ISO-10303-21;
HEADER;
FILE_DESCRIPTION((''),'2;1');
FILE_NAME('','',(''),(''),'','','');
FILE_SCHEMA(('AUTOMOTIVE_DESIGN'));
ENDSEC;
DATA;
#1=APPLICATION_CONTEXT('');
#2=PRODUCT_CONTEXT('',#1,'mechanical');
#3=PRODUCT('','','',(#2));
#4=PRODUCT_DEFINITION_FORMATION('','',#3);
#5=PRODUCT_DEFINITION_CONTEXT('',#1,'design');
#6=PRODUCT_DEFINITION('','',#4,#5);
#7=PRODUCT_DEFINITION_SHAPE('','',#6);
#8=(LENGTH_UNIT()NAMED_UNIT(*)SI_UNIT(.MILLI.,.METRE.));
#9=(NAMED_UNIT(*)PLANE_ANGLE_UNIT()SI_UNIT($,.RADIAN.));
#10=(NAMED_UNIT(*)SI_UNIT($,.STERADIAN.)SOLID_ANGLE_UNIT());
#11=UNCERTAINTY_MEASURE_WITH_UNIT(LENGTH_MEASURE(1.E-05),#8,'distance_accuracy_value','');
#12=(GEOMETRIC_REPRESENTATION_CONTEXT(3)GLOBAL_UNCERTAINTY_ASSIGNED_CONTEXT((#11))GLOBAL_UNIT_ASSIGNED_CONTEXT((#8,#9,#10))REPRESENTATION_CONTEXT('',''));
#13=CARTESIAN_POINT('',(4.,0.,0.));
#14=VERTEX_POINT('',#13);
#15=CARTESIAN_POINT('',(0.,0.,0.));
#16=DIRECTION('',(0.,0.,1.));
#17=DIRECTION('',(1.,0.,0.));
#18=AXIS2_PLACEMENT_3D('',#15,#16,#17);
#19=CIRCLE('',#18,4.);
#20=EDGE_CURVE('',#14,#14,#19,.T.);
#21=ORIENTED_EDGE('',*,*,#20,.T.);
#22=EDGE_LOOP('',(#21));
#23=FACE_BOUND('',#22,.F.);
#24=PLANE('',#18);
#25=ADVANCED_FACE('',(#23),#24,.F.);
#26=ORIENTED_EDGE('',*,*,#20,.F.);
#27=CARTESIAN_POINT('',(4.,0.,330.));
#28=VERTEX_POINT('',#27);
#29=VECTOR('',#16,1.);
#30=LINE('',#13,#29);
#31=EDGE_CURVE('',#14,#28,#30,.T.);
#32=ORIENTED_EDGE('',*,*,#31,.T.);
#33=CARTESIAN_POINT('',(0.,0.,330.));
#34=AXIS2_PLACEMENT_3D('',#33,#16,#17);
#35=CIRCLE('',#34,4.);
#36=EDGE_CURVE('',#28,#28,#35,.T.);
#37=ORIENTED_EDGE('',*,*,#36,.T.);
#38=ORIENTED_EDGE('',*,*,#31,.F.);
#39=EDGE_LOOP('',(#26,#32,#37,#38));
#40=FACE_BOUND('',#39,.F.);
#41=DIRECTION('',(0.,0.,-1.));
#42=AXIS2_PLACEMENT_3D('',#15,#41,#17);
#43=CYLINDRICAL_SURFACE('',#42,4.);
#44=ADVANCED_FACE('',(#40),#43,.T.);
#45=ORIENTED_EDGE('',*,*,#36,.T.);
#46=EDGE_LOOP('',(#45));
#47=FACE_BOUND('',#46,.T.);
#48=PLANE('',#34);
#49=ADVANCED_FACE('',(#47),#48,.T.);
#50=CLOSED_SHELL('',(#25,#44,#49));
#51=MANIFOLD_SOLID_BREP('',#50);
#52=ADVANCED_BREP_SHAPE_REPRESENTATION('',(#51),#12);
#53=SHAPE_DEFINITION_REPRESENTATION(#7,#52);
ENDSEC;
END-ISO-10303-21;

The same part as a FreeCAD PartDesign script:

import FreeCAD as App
import Part
import Sketcher
Q = App.Units.Quantity

doc = App.newDocument("Part")
body = doc.addObject("PartDesign::Body", "Body")

# Sketch on XY plane
sketch1 = body.newObject("Sketcher::SketchObject", "Sketch")
sketch1.AttachmentSupport = (doc.getObject("XY_Plane"), [""])
sketch1.MapMode = "FlatFace"
sketch1.addGeometry(Part.Circle(App.Vector(0, 0, 0), App.Vector(0, 0, 1), 4), False)
sketch1.addConstraint(Sketcher.Constraint("Coincident", 0, 3, -1, 1))
sketch1.addConstraint(Sketcher.Constraint("Diameter", 0, Q("8 mm")))
pad1 = body.newObject("PartDesign::Pad", "Pad")
pad1.Profile = sketch1
pad1.Length = 330

doc.recompute()
